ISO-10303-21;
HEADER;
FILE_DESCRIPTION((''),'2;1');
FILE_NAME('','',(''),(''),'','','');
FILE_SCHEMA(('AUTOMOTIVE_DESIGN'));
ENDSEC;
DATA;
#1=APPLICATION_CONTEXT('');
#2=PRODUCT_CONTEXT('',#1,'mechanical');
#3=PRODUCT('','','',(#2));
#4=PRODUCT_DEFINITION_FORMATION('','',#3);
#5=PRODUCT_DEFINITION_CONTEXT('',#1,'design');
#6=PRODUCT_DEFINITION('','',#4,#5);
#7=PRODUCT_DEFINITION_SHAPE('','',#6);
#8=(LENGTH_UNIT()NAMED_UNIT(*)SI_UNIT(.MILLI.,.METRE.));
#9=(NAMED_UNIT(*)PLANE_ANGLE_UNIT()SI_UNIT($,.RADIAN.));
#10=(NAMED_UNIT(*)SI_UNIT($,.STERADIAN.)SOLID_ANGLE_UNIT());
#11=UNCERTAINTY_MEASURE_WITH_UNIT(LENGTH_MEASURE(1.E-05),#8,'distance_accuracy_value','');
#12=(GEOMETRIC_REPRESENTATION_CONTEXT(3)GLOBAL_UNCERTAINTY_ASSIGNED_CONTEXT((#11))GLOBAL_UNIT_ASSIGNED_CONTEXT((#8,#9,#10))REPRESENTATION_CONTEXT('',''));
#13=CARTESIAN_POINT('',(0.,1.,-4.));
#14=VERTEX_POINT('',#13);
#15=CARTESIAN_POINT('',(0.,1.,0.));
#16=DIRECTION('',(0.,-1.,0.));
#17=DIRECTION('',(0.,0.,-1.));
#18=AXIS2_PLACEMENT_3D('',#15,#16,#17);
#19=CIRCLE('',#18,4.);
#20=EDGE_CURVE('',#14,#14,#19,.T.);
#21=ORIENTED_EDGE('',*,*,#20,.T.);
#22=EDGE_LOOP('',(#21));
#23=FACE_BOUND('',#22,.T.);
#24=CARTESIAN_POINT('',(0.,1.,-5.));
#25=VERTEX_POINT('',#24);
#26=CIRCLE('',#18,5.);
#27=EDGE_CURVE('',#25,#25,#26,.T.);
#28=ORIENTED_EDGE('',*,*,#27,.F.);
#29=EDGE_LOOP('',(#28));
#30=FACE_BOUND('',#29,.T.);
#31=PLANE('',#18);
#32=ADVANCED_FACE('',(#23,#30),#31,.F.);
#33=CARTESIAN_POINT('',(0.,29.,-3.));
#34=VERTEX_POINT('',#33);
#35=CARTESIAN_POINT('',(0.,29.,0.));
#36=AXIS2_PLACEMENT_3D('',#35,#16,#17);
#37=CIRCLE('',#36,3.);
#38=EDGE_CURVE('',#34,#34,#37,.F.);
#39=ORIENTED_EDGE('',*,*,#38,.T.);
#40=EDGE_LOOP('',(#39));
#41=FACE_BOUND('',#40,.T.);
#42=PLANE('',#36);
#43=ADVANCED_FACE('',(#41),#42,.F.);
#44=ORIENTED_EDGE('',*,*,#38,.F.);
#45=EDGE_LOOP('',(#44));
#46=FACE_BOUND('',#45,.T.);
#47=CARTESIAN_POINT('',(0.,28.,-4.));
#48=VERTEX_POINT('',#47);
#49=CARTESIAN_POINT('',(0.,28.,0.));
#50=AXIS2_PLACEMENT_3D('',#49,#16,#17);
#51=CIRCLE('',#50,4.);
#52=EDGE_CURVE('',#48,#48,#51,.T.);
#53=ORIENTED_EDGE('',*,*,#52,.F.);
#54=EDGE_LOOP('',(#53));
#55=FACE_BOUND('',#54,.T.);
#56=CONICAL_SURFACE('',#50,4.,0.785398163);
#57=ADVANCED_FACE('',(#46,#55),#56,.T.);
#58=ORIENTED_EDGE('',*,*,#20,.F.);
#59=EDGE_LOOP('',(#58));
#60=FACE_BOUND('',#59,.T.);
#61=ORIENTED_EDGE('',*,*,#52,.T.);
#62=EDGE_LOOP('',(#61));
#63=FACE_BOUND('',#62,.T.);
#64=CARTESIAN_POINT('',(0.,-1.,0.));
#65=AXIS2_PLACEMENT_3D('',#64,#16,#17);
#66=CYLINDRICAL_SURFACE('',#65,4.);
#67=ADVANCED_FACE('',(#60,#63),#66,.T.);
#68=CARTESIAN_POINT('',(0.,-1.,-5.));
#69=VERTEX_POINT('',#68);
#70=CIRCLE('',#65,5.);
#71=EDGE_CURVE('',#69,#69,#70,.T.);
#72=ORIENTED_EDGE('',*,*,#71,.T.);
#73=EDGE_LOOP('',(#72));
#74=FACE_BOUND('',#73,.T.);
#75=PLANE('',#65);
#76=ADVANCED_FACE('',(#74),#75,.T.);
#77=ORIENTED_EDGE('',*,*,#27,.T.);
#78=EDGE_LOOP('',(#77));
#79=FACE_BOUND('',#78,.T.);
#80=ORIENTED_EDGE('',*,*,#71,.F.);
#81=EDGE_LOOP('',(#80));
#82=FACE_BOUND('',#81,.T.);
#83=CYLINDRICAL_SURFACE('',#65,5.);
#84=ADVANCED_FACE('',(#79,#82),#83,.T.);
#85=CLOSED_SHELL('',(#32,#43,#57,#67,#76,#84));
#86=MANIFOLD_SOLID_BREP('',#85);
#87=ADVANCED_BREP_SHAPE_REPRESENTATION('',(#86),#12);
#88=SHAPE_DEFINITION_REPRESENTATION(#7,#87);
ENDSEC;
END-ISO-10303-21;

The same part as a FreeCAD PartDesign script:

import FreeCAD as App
import Part
import Sketcher
Q = App.Units.Quantity


def edges_at(feature, points):
    """Names of the edges that pass closest to the given points."""
    edges = feature.Shape.Edges
    near = lambda p: min(range(len(edges)), key=lambda i: edges[i].distToShape(Part.Vertex(*p))[0])
    return sorted({f"Edge{near(p) + 1}" for p in points})

doc = App.newDocument("Part")
params = doc.addObject("Spreadsheet::Sheet", "Params")
for row, (alias, value) in enumerate([
    ("sketch1_width", "30 mm"),
    ("sketch1_width2", "2 mm"),
    ("sketch1_height", "5 mm"),
    ("sketch1_height2", "1 mm"),
    ("revolution_angle", "360 deg"),
    ("chamfer_size", "1 mm"),
], start=1):
    params.set(f"A{row}", alias)
    params.set(f"B{row}", "=" + value)
    params.setAlias(f"B{row}", alias)

body = doc.addObject("PartDesign::Body", "Body")

# Sketch on YZ plane
sketch1 = body.newObject("Sketcher::SketchObject", "Sketch")
sketch1.AttachmentSupport = (doc.getObject("YZ_Plane"), [""])
sketch1.MapMode = "FlatFace"
sketch1.addGeometry([
    Part.LineSegment(App.Vector(29, 0, 0), App.Vector(-1, 0, 0)),  # 0
    Part.LineSegment(App.Vector(-1, 0, 0), App.Vector(-1, -5, 0)),  # 1
    Part.LineSegment(App.Vector(-1, -5, 0), App.Vector(1, -5, 0)),  # 2
    Part.LineSegment(App.Vector(1, -5, 0), App.Vector(1, -4, 0)),  # 3
    Part.LineSegment(App.Vector(1, -4, 0), App.Vector(29, -4, 0)),  # 4
    Part.LineSegment(App.Vector(29, -4, 0), App.Vector(29, 0, 0)),  # 5
], False)
sketch1.addConstraint([
    Sketcher.Constraint("Coincident", 0, 2, 1, 1),
    Sketcher.Constraint("Coincident", 1, 2, 2, 1),
    Sketcher.Constraint("Coincident", 2, 2, 3, 1),
    Sketcher.Constraint("Coincident", 3, 2, 4, 1),
    Sketcher.Constraint("Coincident", 4, 2, 5, 1),
    Sketcher.Constraint("Coincident", 5, 2, 0, 1),
    Sketcher.Constraint("Horizontal", 0),
    Sketcher.Constraint("Vertical", 1),
    Sketcher.Constraint("Horizontal", 2),
    Sketcher.Constraint("Vertical", 3),
    Sketcher.Constraint("Horizontal", 4),
    Sketcher.Constraint("Vertical", 5),
    Sketcher.Constraint("PointOnObject", 0, 2, -1),
    Sketcher.Constraint("DistanceX", 0, 2, 0, 1, Q("30 mm")),
    Sketcher.Constraint("DistanceX", 2, 1, 2, 2, Q("2 mm")),
    Sketcher.Constraint("DistanceY", 1, 2, 1, 1, Q("5 mm")),
    Sketcher.Constraint("DistanceY", 3, 1, 3, 2, Q("1 mm")),
    Sketcher.Constraint("DistanceX", 0, 2, -1, 1, Q("1 mm")),
])
sketch1.setExpression("Constraints[13]", "Params.sketch1_width")
sketch1.setExpression("Constraints[14]", "Params.sketch1_width2")
sketch1.setExpression("Constraints[15]", "Params.sketch1_height")
sketch1.setExpression("Constraints[16]", "Params.sketch1_height2")
revolution = body.newObject("PartDesign::Revolution", "Revolution")
revolution.Profile = sketch1
revolution.ReferenceAxis = (sketch1, ["H_Axis"])
revolution.setExpression("Angle", "Params.revolution_angle")
doc.recompute()

chamfer = body.newObject("PartDesign::Chamfer", "Chamfer")
chamfer.Base = (revolution, edges_at(revolution, [(0, 29, 4)]))
chamfer.setExpression("Size", "Params.chamfer_size")

doc.recompute()
